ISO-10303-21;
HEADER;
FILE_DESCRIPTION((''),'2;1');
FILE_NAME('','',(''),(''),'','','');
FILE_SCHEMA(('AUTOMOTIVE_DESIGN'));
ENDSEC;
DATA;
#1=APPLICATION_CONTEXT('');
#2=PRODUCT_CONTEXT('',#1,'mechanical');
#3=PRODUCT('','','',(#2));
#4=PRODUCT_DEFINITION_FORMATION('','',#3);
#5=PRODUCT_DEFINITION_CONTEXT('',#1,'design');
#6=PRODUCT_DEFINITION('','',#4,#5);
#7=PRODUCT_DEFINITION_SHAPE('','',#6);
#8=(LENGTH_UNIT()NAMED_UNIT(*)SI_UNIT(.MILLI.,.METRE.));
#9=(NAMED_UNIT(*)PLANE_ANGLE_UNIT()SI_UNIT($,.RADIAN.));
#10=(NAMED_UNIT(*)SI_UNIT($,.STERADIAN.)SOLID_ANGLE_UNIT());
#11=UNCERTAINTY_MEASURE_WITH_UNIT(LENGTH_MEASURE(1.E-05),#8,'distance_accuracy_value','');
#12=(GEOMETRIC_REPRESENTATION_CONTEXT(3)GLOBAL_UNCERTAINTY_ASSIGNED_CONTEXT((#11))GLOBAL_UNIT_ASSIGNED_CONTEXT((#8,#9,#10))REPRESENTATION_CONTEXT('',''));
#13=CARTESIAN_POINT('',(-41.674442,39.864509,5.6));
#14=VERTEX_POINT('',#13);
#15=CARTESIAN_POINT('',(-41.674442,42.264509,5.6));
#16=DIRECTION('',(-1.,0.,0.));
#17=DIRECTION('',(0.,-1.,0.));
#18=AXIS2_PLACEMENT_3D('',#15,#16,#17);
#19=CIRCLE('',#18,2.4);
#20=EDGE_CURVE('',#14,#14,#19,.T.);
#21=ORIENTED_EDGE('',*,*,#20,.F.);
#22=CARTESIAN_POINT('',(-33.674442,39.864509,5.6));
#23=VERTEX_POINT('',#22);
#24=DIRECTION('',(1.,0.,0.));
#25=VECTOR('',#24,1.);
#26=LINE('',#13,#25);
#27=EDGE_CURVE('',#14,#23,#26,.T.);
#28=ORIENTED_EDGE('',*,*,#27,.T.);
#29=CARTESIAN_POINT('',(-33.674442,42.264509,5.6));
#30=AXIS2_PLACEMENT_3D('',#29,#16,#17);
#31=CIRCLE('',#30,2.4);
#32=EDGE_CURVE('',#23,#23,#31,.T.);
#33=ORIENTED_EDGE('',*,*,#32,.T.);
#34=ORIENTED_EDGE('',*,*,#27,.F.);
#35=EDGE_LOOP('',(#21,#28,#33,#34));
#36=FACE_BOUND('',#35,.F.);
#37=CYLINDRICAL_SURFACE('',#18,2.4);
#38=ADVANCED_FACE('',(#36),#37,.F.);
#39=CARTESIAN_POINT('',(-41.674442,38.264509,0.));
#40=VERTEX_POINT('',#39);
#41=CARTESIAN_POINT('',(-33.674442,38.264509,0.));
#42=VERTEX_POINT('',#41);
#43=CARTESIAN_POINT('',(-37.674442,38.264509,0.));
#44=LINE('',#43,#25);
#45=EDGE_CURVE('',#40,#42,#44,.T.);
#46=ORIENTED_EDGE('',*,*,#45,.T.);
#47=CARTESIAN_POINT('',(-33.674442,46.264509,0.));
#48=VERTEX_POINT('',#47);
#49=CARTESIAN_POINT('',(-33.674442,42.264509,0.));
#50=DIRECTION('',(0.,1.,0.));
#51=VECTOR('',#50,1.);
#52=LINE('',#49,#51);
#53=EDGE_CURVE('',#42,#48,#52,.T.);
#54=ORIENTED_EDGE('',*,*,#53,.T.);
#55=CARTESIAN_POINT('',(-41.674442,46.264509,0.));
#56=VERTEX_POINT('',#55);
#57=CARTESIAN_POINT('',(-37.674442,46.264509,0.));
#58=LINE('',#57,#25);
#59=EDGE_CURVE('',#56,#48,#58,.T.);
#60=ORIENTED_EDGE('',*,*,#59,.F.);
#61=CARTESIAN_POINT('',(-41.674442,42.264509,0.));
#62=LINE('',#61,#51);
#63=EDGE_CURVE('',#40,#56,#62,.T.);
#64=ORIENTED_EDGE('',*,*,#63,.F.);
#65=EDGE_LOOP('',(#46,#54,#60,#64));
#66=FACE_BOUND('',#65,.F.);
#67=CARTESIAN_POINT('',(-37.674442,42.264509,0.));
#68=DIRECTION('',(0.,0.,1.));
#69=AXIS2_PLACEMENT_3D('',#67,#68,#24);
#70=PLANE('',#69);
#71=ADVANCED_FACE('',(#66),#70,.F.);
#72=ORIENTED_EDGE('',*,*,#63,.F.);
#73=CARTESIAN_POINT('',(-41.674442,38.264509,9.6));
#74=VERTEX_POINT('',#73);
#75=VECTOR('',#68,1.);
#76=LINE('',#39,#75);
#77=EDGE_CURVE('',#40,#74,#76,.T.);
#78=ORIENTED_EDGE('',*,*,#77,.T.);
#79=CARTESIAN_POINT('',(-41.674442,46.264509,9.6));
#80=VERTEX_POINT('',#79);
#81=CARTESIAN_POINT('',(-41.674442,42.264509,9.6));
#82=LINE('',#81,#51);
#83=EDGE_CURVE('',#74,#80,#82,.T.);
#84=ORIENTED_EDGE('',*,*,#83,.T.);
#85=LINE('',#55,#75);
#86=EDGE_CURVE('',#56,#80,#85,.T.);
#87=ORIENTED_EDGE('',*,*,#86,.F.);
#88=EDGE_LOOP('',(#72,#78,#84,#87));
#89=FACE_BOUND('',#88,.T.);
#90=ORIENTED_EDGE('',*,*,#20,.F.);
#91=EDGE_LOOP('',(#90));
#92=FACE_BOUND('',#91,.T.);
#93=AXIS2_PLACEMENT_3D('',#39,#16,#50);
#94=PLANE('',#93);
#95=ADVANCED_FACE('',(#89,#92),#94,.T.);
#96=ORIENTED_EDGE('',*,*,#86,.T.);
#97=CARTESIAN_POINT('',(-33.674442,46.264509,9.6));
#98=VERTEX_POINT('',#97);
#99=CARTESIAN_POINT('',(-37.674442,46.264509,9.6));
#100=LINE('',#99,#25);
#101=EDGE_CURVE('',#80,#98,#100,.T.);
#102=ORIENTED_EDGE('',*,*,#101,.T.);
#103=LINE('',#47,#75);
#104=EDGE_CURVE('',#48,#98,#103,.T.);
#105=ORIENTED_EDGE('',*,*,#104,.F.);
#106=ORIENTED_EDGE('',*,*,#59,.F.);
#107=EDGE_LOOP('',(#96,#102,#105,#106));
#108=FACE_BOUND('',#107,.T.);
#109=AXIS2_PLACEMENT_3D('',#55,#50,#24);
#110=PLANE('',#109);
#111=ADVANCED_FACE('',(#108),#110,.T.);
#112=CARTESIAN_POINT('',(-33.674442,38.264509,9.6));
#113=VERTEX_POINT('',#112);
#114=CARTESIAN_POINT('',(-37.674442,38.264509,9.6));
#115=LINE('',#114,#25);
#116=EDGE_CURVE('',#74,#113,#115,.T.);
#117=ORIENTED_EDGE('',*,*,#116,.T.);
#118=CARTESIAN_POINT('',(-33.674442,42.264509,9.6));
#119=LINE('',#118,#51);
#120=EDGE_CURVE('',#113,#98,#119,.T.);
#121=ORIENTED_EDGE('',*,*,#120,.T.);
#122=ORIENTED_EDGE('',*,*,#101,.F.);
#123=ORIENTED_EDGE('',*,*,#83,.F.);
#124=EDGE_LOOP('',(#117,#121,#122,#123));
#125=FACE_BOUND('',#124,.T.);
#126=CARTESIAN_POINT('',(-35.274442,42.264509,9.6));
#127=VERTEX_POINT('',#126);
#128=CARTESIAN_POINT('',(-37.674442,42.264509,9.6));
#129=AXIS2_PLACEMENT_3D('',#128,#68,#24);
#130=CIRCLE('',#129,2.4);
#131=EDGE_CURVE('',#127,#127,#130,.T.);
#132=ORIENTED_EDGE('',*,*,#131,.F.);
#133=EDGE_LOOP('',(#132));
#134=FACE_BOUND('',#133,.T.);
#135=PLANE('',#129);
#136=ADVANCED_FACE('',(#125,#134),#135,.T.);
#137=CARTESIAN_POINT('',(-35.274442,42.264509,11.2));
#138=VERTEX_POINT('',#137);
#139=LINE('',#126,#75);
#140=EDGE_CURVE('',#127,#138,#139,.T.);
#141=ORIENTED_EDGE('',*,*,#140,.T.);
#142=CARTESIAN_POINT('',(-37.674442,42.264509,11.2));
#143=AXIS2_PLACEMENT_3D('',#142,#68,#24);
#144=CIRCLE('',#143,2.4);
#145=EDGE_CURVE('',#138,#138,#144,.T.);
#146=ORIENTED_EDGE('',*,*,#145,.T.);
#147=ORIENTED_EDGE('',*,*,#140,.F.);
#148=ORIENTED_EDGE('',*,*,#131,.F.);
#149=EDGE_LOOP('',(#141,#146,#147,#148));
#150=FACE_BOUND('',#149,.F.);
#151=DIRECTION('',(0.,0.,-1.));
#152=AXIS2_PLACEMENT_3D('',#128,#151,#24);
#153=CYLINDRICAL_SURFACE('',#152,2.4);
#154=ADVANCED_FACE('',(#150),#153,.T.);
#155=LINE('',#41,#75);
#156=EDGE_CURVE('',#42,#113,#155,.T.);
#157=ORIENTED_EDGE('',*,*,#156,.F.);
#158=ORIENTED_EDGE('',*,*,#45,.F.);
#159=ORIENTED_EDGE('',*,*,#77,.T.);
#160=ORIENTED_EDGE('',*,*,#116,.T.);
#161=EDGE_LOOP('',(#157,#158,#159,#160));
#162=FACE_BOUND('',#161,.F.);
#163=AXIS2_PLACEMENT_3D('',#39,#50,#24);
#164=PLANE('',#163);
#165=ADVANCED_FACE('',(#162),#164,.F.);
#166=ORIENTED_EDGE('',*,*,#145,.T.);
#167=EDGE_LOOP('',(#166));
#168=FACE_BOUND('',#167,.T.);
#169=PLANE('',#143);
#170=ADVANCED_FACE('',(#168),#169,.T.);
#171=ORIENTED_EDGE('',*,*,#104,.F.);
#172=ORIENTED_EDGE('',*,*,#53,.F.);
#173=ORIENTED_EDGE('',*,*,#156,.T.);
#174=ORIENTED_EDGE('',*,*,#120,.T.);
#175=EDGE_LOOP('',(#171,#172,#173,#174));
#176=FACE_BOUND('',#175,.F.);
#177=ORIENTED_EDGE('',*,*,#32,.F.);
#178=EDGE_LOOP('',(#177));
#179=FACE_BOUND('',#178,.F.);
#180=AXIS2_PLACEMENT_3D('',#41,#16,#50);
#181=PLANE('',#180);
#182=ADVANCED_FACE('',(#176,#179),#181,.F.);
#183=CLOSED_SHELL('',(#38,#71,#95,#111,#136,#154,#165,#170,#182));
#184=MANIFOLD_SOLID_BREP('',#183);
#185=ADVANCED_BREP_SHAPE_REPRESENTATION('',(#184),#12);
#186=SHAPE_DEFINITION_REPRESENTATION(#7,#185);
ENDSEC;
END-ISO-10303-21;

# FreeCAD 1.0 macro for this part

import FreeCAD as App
import Part
import Sketcher
from FreeCAD import Vector
Q = App.Units.Quantity

doc = App.newDocument("Part")
body = doc.addObject("PartDesign::Body", "Body")

sketch1 = doc.addObject("Sketcher::SketchObject", "Sketch")
body.addObject(sketch1)
sketch1.AttachmentSupport = (doc.XY_Plane, [""])
sketch1.MapMode = "FlatFace"
sketch1.addGeometry([
    Part.LineSegment(Vector(-42, 46, 0), Vector(-42, 38, 0)),
    Part.LineSegment(Vector(-42, 38, 0), Vector(-34, 38, 0)),
    Part.LineSegment(Vector(-34, 38, 0), Vector(-34, 46, 0)),
    Part.LineSegment(Vector(-34, 46, 0), Vector(-42, 46, 0)),
], False)
sketch1.addConstraint([
    Sketcher.Constraint("Coincident", 0, 2, 1, 1),
    Sketcher.Constraint("Coincident", 1, 2, 2, 1),
    Sketcher.Constraint("Coincident", 2, 2, 3, 1),
    Sketcher.Constraint("Coincident", 3, 2, 0, 1),
    Sketcher.Constraint("Vertical", 0),
    Sketcher.Constraint("Horizontal", 1),
    Sketcher.Constraint("Vertical", 2),
    Sketcher.Constraint("Horizontal", 3),
    Sketcher.Constraint("Equal", 3, 0),
    Sketcher.Constraint("DistanceX", 1, 1, 1, 2, Q("8 mm")),
    Sketcher.Constraint("DistanceY", -1, 1, 0, 2, Q("38.264509 mm")),
    Sketcher.Constraint("DistanceX", 0, 2, -1, 1, Q("41.674442 mm")),
])
pad1 = doc.addObject("PartDesign::Pad", "Pad")
body.addObject(pad1)
pad1.Profile = sketch1
pad1.Length = 9.6

sketch2 = doc.addObject("Sketcher::SketchObject", "Sketch001")
body.addObject(sketch2)
sketch2.AttachmentSupport = (doc.YZ_Plane, [""])
sketch2.MapMode = "FlatFace"
sketch2.AttachmentOffset = App.Placement(Vector(0, 0, -41.674442), App.Rotation())
sketch2.addGeometry(Part.Circle(Vector(42.3, 5.6, 0), Vector(0, 0, 1), 2.4), False)
sketch2.addConstraint([
    Sketcher.Constraint("Diameter", 0, Q("4.8 mm")),
    Sketcher.Constraint("DistanceY", -1, 1, 0, 3, Q("5.6 mm")),
    Sketcher.Constraint("DistanceX", -1, 1, 0, 3, Q("42.264509 mm")),
])
pocket1 = doc.addObject("PartDesign::Pocket", "Pocket")
body.addObject(pocket1)
pocket1.Profile = sketch2
pocket1.Length = 25
pocket1.Reversed = True

sketch3 = doc.addObject("Sketcher::SketchObject", "Sketch002")
body.addObject(sketch3)
sketch3.AttachmentSupport = (doc.XY_Plane, [""])
sketch3.MapMode = "FlatFace"
sketch3.AttachmentOffset = App.Placement(Vector(0, 0, 9.6), App.Rotation())
sketch3.addGeometry(Part.Circle(Vector(-37.7, 42.3, 0), Vector(0, 0, 1), 2.4), False)
sketch3.addConstraint([
    Sketcher.Constraint("Diameter", 0, Q("4.8 mm")),
    Sketcher.Constraint("DistanceY", -1, 1, 0, 3, Q("42.264509 mm")),
    Sketcher.Constraint("DistanceX", 0, 3, -1, 1, Q("37.674442 mm")),
])
pad2 = doc.addObject("PartDesign::Pad", "Pad001")
body.addObject(pad2)
pad2.Profile = sketch3
pad2.Length = 1.6

doc.recompute()
